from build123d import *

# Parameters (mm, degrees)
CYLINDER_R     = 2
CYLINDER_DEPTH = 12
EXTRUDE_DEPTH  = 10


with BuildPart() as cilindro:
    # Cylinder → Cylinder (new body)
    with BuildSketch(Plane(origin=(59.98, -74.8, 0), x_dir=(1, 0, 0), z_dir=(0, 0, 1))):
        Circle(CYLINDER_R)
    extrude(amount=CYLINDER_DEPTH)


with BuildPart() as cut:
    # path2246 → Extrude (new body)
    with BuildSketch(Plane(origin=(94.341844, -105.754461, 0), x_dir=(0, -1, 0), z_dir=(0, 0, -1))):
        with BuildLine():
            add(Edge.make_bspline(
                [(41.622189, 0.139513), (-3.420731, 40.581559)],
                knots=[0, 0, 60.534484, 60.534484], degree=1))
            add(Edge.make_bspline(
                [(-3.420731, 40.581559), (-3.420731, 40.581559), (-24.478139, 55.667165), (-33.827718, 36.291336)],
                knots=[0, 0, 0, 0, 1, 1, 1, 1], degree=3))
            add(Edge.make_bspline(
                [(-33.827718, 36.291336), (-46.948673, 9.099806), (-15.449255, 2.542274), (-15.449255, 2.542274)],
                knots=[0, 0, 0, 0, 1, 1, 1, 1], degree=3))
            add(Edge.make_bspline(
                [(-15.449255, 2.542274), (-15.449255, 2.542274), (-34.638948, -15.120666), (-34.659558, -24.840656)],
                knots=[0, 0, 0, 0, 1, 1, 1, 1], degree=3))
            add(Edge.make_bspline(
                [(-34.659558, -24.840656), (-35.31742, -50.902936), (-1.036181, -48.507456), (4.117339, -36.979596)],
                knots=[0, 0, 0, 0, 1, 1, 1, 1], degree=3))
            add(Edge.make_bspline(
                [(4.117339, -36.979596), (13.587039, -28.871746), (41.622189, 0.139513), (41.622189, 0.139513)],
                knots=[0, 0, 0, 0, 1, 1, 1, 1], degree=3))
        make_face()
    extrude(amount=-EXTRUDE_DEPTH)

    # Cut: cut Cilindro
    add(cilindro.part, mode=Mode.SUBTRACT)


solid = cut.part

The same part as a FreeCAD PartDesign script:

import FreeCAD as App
import Part
import Sketcher
Q = App.Units.Quantity

doc = App.newDocument("Part")
body = doc.addObject("PartDesign::Body", "Body")

# Sketch on XY plane
sketch1 = body.newObject("Sketcher::SketchObject", "Sketch")
sketch1.AttachmentSupport = (doc.getObject("XY_Plane"), [""])
sketch1.MapMode = "FlatFace"
sketch1.addGeometry(Part.Circle(App.Vector(59.98, -74.8, 0), App.Vector(0, 0, 1), 2), False)
sketch1.addConstraint([
    Sketcher.Constraint("Diameter", 0, Q("4 mm")),
    Sketcher.Constraint("DistanceY", 0, 3, -1, 1, Q("74.8 mm")),
    Sketcher.Constraint("DistanceX", -1, 1, 0, 3, Q("59.98 mm")),
])
pad1 = body.newObject("PartDesign::Pad", "Pad")
pad1.Profile = sketch1
pad1.Length = 12
body2 = doc.addObject("PartDesign::Body", "Body001")

# Sketch on XY plane
sketch2 = body2.newObject("Sketcher::SketchObject", "Sketch001")
sketch2.AttachmentSupport = (doc.getObject("XY_Plane001"), [""])
sketch2.MapMode = "FlatFace"
sketch2.addGeometry([
    Part.BSplineCurve([App.Vector(94.202331, -147.37665, 0), App.Vector(53.760285, -102.33373, 0)], [2, 2], [0, 60.534484], False, 1, [1, 1], False),  # 0
    Part.BSplineCurve([App.Vector(53.760285, -102.33373, 0), App.Vector(53.760285, -102.33373, 0), App.Vector(38.674679, -81.276322, 0), App.Vector(58.050508, -71.926743, 0)], [4, 4], [0, 1], False, 3, [1, 1, 1, 1], False),  # 1
    Part.BSplineCurve([App.Vector(58.050508, -71.926743, 0), App.Vector(85.242038, -58.805788, 0), App.Vector(91.79957, -90.305206, 0), App.Vector(91.79957, -90.305206, 0)], [4, 4], [0, 1], False, 3, [1, 1, 1, 1], False),  # 2
    Part.BSplineCurve([App.Vector(91.79957, -90.305206, 0), App.Vector(91.79957, -90.305206, 0), App.Vector(109.46251, -71.115513, 0), App.Vector(119.1825, -71.094903, 0)], [4, 4], [0, 1], False, 3, [1, 1, 1, 1], False),  # 3
    Part.BSplineCurve([App.Vector(119.1825, -71.094903, 0), App.Vector(145.24478, -70.437041, 0), App.Vector(142.8493, -104.71828, 0), App.Vector(131.32144, -109.8718, 0)], [4, 4], [0, 1], False, 3, [1, 1, 1, 1], False),  # 4
    Part.BSplineCurve([App.Vector(131.32144, -109.8718, 0), App.Vector(123.21359, -119.3415, 0), App.Vector(94.202331, -147.37665, 0), App.Vector(94.202331, -147.37665, 0)], [4, 4], [0, 1], False, 3, [1, 1, 1, 1], False),  # 5
], False)
sketch2.addConstraint([
    Sketcher.Constraint("Block", 0),
    Sketcher.Constraint("Block", 1),
    Sketcher.Constraint("Block", 2),
    Sketcher.Constraint("Block", 3),
    Sketcher.Constraint("Block", 4),
    Sketcher.Constraint("Block", 5),
])
pad2 = body2.newObject("PartDesign::Pad", "Pad001")
pad2.Profile = sketch2
pad2.Length = 10
doc.recompute()

boolean = body2.newObject("PartDesign::Boolean", "Boolean")
boolean.Type = "Cut"
boolean.addObjects([body])

doc.recompute()
